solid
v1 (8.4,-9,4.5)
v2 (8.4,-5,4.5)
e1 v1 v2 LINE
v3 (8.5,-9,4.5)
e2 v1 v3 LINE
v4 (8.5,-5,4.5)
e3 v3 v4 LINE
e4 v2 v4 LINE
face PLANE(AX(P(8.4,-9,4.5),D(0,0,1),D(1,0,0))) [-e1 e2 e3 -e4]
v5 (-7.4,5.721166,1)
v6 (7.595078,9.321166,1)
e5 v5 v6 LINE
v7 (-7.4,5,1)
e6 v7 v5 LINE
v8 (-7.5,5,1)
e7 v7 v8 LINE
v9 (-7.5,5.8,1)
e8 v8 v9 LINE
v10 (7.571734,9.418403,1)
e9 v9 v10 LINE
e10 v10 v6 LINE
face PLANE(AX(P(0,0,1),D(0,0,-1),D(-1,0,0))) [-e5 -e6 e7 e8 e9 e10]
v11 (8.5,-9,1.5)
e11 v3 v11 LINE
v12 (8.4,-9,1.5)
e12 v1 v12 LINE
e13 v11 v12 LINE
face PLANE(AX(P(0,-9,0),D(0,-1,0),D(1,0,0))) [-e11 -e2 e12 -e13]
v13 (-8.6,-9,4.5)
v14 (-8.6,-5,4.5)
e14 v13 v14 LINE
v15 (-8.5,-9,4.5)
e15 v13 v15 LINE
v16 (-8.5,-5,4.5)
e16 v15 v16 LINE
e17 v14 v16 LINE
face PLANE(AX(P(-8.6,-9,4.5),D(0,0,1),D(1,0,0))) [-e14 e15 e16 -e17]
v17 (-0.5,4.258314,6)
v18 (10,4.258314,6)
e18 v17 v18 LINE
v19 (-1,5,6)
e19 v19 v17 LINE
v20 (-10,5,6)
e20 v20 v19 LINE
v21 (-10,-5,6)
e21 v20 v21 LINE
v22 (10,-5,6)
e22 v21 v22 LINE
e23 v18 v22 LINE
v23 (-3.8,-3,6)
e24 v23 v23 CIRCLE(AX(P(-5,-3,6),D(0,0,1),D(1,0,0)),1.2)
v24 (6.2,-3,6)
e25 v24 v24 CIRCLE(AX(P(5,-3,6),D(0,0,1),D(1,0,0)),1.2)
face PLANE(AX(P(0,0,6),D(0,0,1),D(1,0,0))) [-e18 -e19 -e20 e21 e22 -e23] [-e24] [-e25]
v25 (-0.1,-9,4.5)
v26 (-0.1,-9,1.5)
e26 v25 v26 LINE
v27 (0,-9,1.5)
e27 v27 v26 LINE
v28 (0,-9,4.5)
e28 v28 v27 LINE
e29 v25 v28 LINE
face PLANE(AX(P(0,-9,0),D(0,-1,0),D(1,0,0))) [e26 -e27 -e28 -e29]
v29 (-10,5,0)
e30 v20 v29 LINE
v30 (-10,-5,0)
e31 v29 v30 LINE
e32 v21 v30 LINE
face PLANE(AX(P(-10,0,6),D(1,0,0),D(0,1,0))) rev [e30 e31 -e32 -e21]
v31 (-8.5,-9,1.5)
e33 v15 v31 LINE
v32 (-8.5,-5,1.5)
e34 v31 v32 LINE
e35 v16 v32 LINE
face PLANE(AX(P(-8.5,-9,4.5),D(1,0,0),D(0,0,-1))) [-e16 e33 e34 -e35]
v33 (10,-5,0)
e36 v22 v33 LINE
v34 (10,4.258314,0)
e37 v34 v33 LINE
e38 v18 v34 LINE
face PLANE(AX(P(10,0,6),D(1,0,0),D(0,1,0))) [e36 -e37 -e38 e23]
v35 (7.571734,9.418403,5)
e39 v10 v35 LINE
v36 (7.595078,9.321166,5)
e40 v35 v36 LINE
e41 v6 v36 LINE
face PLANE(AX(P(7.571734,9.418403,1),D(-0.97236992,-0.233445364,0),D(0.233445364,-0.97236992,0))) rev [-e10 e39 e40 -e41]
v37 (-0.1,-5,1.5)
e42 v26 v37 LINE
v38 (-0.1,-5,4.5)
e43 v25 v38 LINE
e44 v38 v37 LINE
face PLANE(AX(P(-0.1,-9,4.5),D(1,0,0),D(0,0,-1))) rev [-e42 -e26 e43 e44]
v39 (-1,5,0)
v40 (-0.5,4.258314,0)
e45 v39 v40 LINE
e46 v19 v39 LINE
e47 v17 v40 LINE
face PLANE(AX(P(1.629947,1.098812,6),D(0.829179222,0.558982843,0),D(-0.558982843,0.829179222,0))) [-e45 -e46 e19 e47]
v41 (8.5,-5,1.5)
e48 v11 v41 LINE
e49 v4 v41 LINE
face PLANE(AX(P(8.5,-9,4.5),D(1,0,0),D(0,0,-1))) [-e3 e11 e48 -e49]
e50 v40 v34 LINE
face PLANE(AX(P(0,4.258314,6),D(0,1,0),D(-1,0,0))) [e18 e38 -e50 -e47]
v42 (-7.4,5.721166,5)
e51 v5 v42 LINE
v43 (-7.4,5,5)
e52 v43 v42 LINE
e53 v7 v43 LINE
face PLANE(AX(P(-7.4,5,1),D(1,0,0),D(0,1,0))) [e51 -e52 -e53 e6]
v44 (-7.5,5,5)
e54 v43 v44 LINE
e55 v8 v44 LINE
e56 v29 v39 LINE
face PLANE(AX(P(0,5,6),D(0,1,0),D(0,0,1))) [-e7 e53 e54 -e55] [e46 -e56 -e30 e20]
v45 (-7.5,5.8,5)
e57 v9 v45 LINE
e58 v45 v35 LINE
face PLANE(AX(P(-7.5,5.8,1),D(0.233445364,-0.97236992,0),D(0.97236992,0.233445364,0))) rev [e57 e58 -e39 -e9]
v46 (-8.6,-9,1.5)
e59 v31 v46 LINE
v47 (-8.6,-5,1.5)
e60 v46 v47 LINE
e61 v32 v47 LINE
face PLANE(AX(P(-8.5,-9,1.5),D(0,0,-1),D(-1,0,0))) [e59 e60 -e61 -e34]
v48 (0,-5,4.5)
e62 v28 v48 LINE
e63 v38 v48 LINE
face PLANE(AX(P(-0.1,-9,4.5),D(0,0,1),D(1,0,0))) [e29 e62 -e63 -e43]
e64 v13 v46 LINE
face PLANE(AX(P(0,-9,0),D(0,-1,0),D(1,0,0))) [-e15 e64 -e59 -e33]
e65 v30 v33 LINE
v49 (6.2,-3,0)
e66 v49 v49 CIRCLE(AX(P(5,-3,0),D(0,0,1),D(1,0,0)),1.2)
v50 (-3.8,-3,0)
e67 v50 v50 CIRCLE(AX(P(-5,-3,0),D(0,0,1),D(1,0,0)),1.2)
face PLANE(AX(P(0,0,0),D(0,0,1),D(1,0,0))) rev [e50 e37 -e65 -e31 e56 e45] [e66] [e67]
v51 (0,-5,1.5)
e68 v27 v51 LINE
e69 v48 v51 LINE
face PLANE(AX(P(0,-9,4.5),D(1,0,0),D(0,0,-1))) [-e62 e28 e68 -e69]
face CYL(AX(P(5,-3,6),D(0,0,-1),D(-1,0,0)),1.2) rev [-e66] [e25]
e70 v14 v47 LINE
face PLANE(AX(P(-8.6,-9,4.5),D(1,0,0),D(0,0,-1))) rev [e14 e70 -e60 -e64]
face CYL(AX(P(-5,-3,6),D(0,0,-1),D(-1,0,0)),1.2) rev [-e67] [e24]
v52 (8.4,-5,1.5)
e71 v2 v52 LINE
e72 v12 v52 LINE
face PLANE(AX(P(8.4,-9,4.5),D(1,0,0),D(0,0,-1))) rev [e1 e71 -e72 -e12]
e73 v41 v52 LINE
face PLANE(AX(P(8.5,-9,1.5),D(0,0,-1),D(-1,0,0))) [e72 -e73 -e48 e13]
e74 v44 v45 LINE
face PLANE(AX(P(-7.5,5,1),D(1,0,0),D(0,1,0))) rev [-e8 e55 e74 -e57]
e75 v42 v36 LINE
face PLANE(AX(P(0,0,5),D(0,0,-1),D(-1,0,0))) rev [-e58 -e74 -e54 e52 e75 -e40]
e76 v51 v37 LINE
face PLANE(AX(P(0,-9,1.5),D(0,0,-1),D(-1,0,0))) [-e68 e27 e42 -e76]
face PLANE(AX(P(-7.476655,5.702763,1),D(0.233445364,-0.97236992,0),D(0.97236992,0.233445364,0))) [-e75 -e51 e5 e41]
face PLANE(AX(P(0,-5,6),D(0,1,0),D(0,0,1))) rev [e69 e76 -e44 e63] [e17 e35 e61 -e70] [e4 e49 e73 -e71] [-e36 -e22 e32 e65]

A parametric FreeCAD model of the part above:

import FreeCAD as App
import Part
import Sketcher
from FreeCAD import Vector
Q = App.Units.Quantity

doc = App.newDocument("Part")
params = doc.addObject("Spreadsheet::Sheet", "Params")
for row, (alias, value) in enumerate([
    ("sketch1_diameter", "2.4 mm"),
    ("sketch1_width", "9 mm"),
    ("sketch1_width2", "20 mm"),
    ("sketch1_height", "10 mm"),
    ("sketch1_width3", "10.5 mm"),
    ("pad1_length", "6 mm"),
    ("sketch2_width", "0.1 mm"),
    ("sketch2_height", "0.8 mm"),
    ("sketch2_length", "0.1 mm"),
    ("sketch2_length2", "15.5 mm"),
    ("pad2_length", "4 mm"),
    ("sketch3_height", "3 mm"),
    ("sketch3_width", "0.1 mm"),
    ("pad3_length", "4 mm"),
], start=1):
    params.set(f"A{row}", alias)
    params.set(f"B{row}", "=" + value)
    params.setAlias(f"B{row}", alias)

body = doc.addObject("PartDesign::Body", "Body")

# Sketch on XY plane
sketch1 = body.newObject("Sketcher::SketchObject", "Sketch")
sketch1.AttachmentSupport = (doc.getObject("XY_Plane"), [""])
sketch1.MapMode = "FlatFace"
sketch1.addGeometry([
    Part.LineSegment(Vector(-0.5, 4.3, 0), Vector(-1, 5, 0)),  # 0
    Part.LineSegment(Vector(-1, 5, 0), Vector(-10, 5, 0)),  # 1
    Part.LineSegment(Vector(-10, 5, 0), Vector(-10, -5, 0)),  # 2
    Part.LineSegment(Vector(-10, -5, 0), Vector(10, -5, 0)),  # 3
    Part.LineSegment(Vector(10, -5, 0), Vector(10, 4.3, 0)),  # 4
    Part.LineSegment(Vector(10, 4.3, 0), Vector(-0.5, 4.3, 0)),  # 5
    Part.Circle(Vector(-5, -3, 0), Vector(0, 0, 1), 1.2),  # 6
    Part.Circle(Vector(5, -3, 0), Vector(0, 0, 1), 1.2),  # 7
], False)
sketch1.addConstraint([
    Sketcher.Constraint("Coincident", 0, 2, 1, 1),
    Sketcher.Constraint("Coincident", 1, 2, 2, 1),
    Sketcher.Constraint("Coincident", 2, 2, 3, 1),
    Sketcher.Constraint("Coincident", 3, 2, 4, 1),
    Sketcher.Constraint("Coincident", 4, 2, 5, 1),
    Sketcher.Constraint("Coincident", 5, 2, 0, 1),
    Sketcher.Constraint("Horizontal", 1),
    Sketcher.Constraint("Vertical", 2),
    Sketcher.Constraint("Horizontal", 3),
    Sketcher.Constraint("Vertical", 4),
    Sketcher.Constraint("Horizontal", 5),
    Sketcher.Constraint("Equal", 6, 7),
    Sketcher.Constraint("Symmetric", 1, 2, 3, 2, -1, 1),
    Sketcher.Constraint("Symmetric", 6, 3, 7, 3, -2),
    Sketcher.Constraint("Diameter", 6, 2.4),
    Sketcher.Constraint("DistanceX", 1, 2, 1, 1, 9.0),
    Sketcher.Constraint("DistanceX", 3, 1, 3, 2, 20.0),
    Sketcher.Constraint("DistanceY", 2, 2, 2, 1, 10.0),
    Sketcher.Constraint("DistanceX", 5, 2, 5, 1, 10.5),
    Sketcher.Constraint("DistanceX", 6, 3, -1, 1, 5.0),
    Sketcher.Constraint("DistanceY", 6, 3, -1, 1, 3.0),
    Sketcher.Constraint("Distance", 0, 0.894482),
])
sketch1.setExpression("Constraints[14]", "Params.sketch1_diameter")
sketch1.setExpression("Constraints[15]", "Params.sketch1_width")
sketch1.setExpression("Constraints[16]", "Params.sketch1_width2")
sketch1.setExpression("Constraints[17]", "Params.sketch1_height")
sketch1.setExpression("Constraints[18]", "Params.sketch1_width3")
pad1 = body.newObject("PartDesign::Pad", "Pad")
pad1.Profile = sketch1
pad1.setExpression("Length", "Params.pad1_length")

# Sketch on XY plane
sketch2 = body.newObject("Sketcher::SketchObject", "Sketch001")
sketch2.AttachmentSupport = (doc.getObject("XY_Plane"), [""])
sketch2.MapMode = "FlatFace"
sketch2.AttachmentOffset = App.Placement(Vector(0, 0, 5), App.Rotation())
sketch2.addGeometry([
    Part.LineSegment(Vector(-7.5, 5.8, 0), Vector(-7.5, 5, 0)),  # 0
    Part.LineSegment(Vector(-7.5, 5, 0), Vector(-7.4, 5, 0)),  # 1
    Part.LineSegment(Vector(-7.4, 5, 0), Vector(-7.4, 5.72, 0)),  # 2
    Part.LineSegment(Vector(-7.4, 5.72, 0), Vector(7.6, 9.32, 0)),  # 3
    Part.LineSegment(Vector(7.6, 9.32, 0), Vector(7.57, 9.42, 0)),  # 4
    Part.LineSegment(Vector(7.57, 9.42, 0), Vector(-7.5, 5.8, 0)),  # 5
], False)
sketch2.addConstraint([
    Sketcher.Constraint("Coincident", 0, 2, 1, 1),
    Sketcher.Constraint("Coincident", 1, 2, 2, 1),
    Sketcher.Constraint("Coincident", 2, 2, 3, 1),
    Sketcher.Constraint("Coincident", 3, 2, 4, 1),
    Sketcher.Constraint("Coincident", 4, 2, 5, 1),
    Sketcher.Constraint("Coincident", 5, 2, 0, 1),
    Sketcher.Constraint("Vertical", 0),
    Sketcher.Constraint("Horizontal", 1),
    Sketcher.Constraint("Vertical", 2),
    Sketcher.Constraint("Perpendicular", 3, 4),
    Sketcher.Constraint("Perpendicular", 4, 5),
    Sketcher.Constraint("DistanceX", 1, 1, 1, 2, 0.1),
    Sketcher.Constraint("DistanceY", 0, 2, 0, 1, 0.8),
    Sketcher.Constraint("DistanceY", -1, 1, 0, 2, 5.0),
    Sketcher.Constraint("Angle", 3, Q("13.5 deg")),
    Sketcher.Constraint("Distance", 4, 0.1),
    Sketcher.Constraint("Distance", 5, 15.5),
    Sketcher.Constraint("DistanceX", 0, 2, -1, 1, 7.5),
])
sketch2.setExpression("Constraints[11]", "Params.sketch2_width")
sketch2.setExpression("Constraints[12]", "Params.sketch2_height")
sketch2.setExpression("Constraints[15]", "Params.sketch2_length")
sketch2.setExpression("Constraints[16]", "Params.sketch2_length2")
pad2 = body.newObject("PartDesign::Pad", "Pad001")
pad2.Profile = sketch2
pad2.setExpression("Length", "Params.pad2_length")
pad2.Reversed = True

# Sketch on XZ plane
sketch3 = body.newObject("Sketcher::SketchObject", "Sketch002")
sketch3.AttachmentSupport = (doc.getObject("XZ_Plane"), [""])
sketch3.MapMode = "FlatFace"
sketch3.AttachmentOffset = App.Placement(Vector(0, 0, 5), App.Rotation())
sketch3.addGeometry([
    Part.LineSegment(Vector(-8.6, 4.5, 0), Vector(-8.6, 1.5, 0)),  # 0
    Part.LineSegment(Vector(-8.6, 1.5, 0), Vector(-8.5, 1.5, 0)),  # 1
    Part.LineSegment(Vector(-8.5, 1.5, 0), Vector(-8.5, 4.5, 0)),  # 2
    Part.LineSegment(Vector(-8.5, 4.5, 0), Vector(-8.6, 4.5, 0)),  # 3
    Part.LineSegment(Vector(8.4, 4.5, 0), Vector(8.4, 1.5, 0)),  # 4
    Part.LineSegment(Vector(8.4, 1.5, 0), Vector(8.5, 1.5, 0)),  # 5
    Part.LineSegment(Vector(8.5, 1.5, 0), Vector(8.5, 4.5, 0)),  # 6
    Part.LineSegment(Vector(8.5, 4.5, 0), Vector(8.4, 4.5, 0)),  # 7
    Part.LineSegment(Vector(-0.1, 4.5, 0), Vector(-0.1, 1.5, 0)),  # 8
    Part.LineSegment(Vector(-0.1, 1.5, 0), Vector(0, 1.5, 0)),  # 9
    Part.LineSegment(Vector(0, 1.5, 0), Vector(0, 4.5, 0)),  # 10
    Part.LineSegment(Vector(0, 4.5, 0), Vector(-0.1, 4.5, 0)),  # 11
], False)
sketch3.addConstraint([
    Sketcher.Constraint("Coincident", 0, 2, 1, 1),
    Sketcher.Constraint("Coincident", 1, 2, 2, 1),
    Sketcher.Constraint("Coincident", 2, 2, 3, 1),
    Sketcher.Constraint("Coincident", 3, 2, 0, 1),
    Sketcher.Constraint("Coincident", 4, 2, 5, 1),
    Sketcher.Constraint("Coincident", 5, 2, 6, 1),
    Sketcher.Constraint("Coincident", 6, 2, 7, 1),
    Sketcher.Constraint("Coincident", 7, 2, 4, 1),
    Sketcher.Constraint("Coincident", 8, 2, 9, 1),
    Sketcher.Constraint("Coincident", 9, 2, 10, 1),
    Sketcher.Constraint("Coincident", 10, 2, 11, 1),
    Sketcher.Constraint("Coincident", 11, 2, 8, 1),
    Sketcher.Constraint("Vertical", 0),
    Sketcher.Constraint("Horizontal", 1),
    Sketcher.Constraint("Vertical", 2),
    Sketcher.Constraint("Horizontal", 3),
    Sketcher.Constraint("Vertical", 4),
    Sketcher.Constraint("Horizontal", 5),
    Sketcher.Constraint("Vertical", 6),
    Sketcher.Constraint("Horizontal", 7),
    Sketcher.Constraint("Vertical", 8),
    Sketcher.Constraint("Horizontal", 9),
    Sketcher.Constraint("Vertical", 10),
    Sketcher.Constraint("Horizontal", 11),
    Sketcher.Constraint("Symmetric", 1, 2, 5, 2, -2),
    Sketcher.Constraint("PointOnObject", 9, 2, -2),
    Sketcher.Constraint("Horizontal", 3, 2, 6, 2),
    Sketcher.Constraint("Horizontal", 5, 2, 8, 2),
    Sketcher.Constraint("Horizontal", 7, 2, 10, 2),
    Sketcher.Constraint("Equal", 3, 5),
    Sketcher.Constraint("Equal", 7, 9),
    Sketcher.Constraint("DistanceY", 0, 2, 0, 1, 3.0),
    Sketcher.Constraint("DistanceX", 1, 1, 1, 2, 0.1),
    Sketcher.Constraint("DistanceX", 0, 2, 4, 2, 17.0),
    Sketcher.Constraint("DistanceY", -1, 1, 0, 2, 1.5),
])
sketch3.setExpression("Constraints[31]", "Params.sketch3_height")
sketch3.setExpression("Constraints[32]", "Params.sketch3_width")
pad3 = body.newObject("PartDesign::Pad", "Pad002")
pad3.Profile = sketch3
pad3.setExpression("Length", "Params.pad3_length")

doc.recompute()
